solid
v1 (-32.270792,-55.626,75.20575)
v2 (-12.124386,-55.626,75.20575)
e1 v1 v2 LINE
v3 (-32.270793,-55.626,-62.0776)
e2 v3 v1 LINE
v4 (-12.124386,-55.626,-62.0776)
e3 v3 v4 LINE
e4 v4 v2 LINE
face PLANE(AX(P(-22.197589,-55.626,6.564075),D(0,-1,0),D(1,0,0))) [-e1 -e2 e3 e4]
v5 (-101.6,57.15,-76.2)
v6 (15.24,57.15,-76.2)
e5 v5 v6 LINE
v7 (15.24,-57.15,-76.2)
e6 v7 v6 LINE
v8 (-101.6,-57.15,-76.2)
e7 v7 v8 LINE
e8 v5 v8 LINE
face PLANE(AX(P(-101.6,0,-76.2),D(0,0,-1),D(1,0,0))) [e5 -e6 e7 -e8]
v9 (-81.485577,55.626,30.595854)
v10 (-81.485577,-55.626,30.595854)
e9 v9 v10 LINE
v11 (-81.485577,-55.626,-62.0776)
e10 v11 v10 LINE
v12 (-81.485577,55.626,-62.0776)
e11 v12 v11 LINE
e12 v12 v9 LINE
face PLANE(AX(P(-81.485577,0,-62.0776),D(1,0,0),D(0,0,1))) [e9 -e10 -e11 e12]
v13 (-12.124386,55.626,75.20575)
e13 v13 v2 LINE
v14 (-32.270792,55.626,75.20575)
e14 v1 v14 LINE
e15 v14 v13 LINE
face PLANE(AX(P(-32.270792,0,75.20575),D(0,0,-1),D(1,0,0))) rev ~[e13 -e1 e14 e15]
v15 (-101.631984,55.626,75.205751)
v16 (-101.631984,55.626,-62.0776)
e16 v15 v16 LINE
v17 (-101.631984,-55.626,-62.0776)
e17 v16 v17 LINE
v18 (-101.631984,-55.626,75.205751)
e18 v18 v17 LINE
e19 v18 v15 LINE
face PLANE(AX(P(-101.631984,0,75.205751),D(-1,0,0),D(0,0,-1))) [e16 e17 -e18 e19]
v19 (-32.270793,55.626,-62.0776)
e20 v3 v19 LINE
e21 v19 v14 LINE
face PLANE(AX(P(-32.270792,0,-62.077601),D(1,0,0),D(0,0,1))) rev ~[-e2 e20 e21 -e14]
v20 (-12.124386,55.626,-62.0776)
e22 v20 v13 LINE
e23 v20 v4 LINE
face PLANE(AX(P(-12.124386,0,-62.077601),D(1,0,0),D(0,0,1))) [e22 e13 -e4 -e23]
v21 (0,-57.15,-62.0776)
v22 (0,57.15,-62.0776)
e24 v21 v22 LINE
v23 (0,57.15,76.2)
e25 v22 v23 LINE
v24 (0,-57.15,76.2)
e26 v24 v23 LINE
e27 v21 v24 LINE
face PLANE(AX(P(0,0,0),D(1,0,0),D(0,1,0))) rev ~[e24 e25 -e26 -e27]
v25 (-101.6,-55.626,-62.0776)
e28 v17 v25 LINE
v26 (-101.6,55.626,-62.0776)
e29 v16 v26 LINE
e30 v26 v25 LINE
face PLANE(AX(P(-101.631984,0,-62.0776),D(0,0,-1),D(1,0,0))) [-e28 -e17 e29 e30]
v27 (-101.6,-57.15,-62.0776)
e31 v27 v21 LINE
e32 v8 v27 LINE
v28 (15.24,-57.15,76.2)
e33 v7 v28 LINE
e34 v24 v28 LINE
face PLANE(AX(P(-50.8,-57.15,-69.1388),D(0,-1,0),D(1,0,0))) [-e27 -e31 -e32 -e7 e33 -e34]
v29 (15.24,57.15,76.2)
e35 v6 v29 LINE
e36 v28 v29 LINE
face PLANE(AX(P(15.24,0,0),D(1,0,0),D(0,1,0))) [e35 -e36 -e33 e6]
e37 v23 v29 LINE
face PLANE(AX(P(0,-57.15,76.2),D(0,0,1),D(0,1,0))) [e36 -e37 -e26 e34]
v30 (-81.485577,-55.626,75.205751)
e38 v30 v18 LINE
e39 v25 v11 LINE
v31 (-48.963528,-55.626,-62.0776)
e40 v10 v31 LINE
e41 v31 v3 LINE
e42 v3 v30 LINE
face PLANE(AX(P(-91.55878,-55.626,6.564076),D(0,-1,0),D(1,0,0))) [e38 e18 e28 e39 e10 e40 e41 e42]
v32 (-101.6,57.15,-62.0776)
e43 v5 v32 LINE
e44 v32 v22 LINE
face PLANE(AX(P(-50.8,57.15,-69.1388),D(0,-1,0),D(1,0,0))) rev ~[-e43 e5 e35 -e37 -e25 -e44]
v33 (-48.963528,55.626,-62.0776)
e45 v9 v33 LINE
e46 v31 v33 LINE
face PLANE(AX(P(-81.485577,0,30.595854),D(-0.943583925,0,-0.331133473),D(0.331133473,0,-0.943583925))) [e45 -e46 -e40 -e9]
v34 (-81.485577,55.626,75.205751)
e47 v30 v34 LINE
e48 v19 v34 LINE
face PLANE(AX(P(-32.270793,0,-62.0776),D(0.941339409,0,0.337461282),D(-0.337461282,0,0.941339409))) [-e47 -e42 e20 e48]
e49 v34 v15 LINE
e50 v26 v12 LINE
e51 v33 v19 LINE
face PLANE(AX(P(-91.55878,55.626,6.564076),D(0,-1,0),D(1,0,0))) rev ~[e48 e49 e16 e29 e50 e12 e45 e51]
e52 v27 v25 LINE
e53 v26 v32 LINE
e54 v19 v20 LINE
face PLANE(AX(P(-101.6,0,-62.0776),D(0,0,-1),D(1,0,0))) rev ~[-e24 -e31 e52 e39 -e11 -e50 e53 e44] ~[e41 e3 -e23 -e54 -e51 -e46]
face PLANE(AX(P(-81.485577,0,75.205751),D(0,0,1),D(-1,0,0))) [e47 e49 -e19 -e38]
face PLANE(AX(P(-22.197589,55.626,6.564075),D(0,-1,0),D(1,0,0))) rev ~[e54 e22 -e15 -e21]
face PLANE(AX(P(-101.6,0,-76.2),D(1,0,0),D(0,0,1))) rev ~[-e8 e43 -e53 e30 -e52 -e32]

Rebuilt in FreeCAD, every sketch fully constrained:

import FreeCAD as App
import Part
import Sketcher
from FreeCAD import Vector
Q = App.Units.Quantity

doc = App.newDocument("Part")
body = doc.addObject("PartDesign::Body", "Body")

# Sketch on YZ plane
sketch1 = doc.addObject("Sketcher::SketchObject", "Sketch")
body.addObject(sketch1)
sketch1.AttachmentSupport = (doc.YZ_Plane, [""])
sketch1.MapMode = "FlatFace"
sketch1.addGeometry([
    Part.LineSegment(Vector(-57.15, 76.2, 0), Vector(-57.15, -76.2, 0)),
    Part.LineSegment(Vector(-57.15, -76.2, 0), Vector(57.15, -76.2, 0)),
    Part.LineSegment(Vector(57.15, -76.2, 0), Vector(57.15, 76.2, 0)),
    Part.LineSegment(Vector(57.15, 76.2, 0), Vector(-57.15, 76.2, 0)),
], False)
sketch1.addConstraint([
    Sketcher.Constraint("Coincident", 0, 2, 1, 1),
    Sketcher.Constraint("Coincident", 1, 2, 2, 1),
    Sketcher.Constraint("Coincident", 2, 2, 3, 1),
    Sketcher.Constraint("Coincident", 3, 2, 0, 1),
    Sketcher.Constraint("Vertical", 0),
    Sketcher.Constraint("Horizontal", 1),
    Sketcher.Constraint("Vertical", 2),
    Sketcher.Constraint("Horizontal", 3),
    Sketcher.Constraint("Symmetric", 0, 2, 2, 2, -1, 1),
    Sketcher.Constraint("DistanceY", 0, 2, 0, 1, Q("6 in")),
    Sketcher.Constraint("DistanceX", 1, 1, 1, 2, Q("4.5 in")),
])
pad1 = doc.addObject("PartDesign::Pad", "Pad")
body.addObject(pad1)
pad1.Profile = sketch1
pad1.Length = Q("0.6 in")

# Sketch on XZ plane
sketch2 = doc.addObject("Sketcher::SketchObject", "Sketch001")
body.addObject(sketch2)
sketch2.AttachmentSupport = (doc.XZ_Plane, [""])
sketch2.MapMode = "FlatFace"
sketch2.addGeometry([
    Part.LineSegment(Vector(-101.6, -62.0776, 0), Vector(-101.6, -76.2, 0)),
    Part.LineSegment(Vector(-101.6, -76.2, 0), Vector(0, -76.2, 0)),
    Part.LineSegment(Vector(0, -76.2, 0), Vector(0, -62.0776, 0)),
    Part.LineSegment(Vector(0, -62.0776, 0), Vector(-101.6, -62.0776, 0)),
], False)
sketch2.addConstraint([
    Sketcher.Constraint("Coincident", 0, 2, 1, 1),
    Sketcher.Constraint("Coincident", 1, 2, 2, 1),
    Sketcher.Constraint("Coincident", 2, 2, 3, 1),
    Sketcher.Constraint("Coincident", 3, 2, 0, 1),
    Sketcher.Constraint("Vertical", 0),
    Sketcher.Constraint("Horizontal", 1),
    Sketcher.Constraint("Vertical", 2),
    Sketcher.Constraint("Horizontal", 3),
    Sketcher.Constraint("PointOnObject", 1, 2, -2),
    Sketcher.Constraint("DistanceX", 1, 1, 1, 2, Q("4 in")),
    Sketcher.Constraint("DistanceY", 0, 2, -1, 1, Q("3 in")),
    Sketcher.Constraint("DistanceY", 0, 2, 0, 1, Q("0.556 in")),
])
pad2 = doc.addObject("PartDesign::Pad", "Pad001")
body.addObject(pad2)
pad2.Profile = sketch2
pad2.Length = Q("2.25 in")

# Sketch on XZ plane
sketch3 = doc.addObject("Sketcher::SketchObject", "Sketch002")
body.addObject(sketch3)
sketch3.AttachmentSupport = (doc.XZ_Plane, [""])
sketch3.MapMode = "FlatFace"
sketch3.addGeometry([
    Part.LineSegment(Vector(-101.6, -62.0776, 0), Vector(-101.6, -76.2, 0)),
    Part.LineSegment(Vector(-101.6, -76.2, 0), Vector(0, -76.2, 0)),
    Part.LineSegment(Vector(0, -76.2, 0), Vector(0, -62.0776, 0)),
    Part.LineSegment(Vector(0, -62.0776, 0), Vector(-101.6, -62.0776, 0)),
], False)
sketch3.addConstraint([
    Sketcher.Constraint("Coincident", 0, 2, 1, 1),
    Sketcher.Constraint("Coincident", 1, 2, 2, 1),
    Sketcher.Constraint("Coincident", 2, 2, 3, 1),
    Sketcher.Constraint("Coincident", 3, 2, 0, 1),
    Sketcher.Constraint("Vertical", 0),
    Sketcher.Constraint("Horizontal", 1),
    Sketcher.Constraint("Vertical", 2),
    Sketcher.Constraint("Horizontal", 3),
    Sketcher.Constraint("PointOnObject", 1, 2, -2),
    Sketcher.Constraint("DistanceX", 1, 1, 1, 2, Q("4 in")),
    Sketcher.Constraint("DistanceY", 0, 2, -1, 1, Q("3 in")),
    Sketcher.Constraint("DistanceY", 0, 2, 0, 1, Q("0.556 in")),
])
pad3 = doc.addObject("PartDesign::Pad", "Pad002")
body.addObject(pad3)
pad3.Profile = sketch3
pad3.Length = Q("2.25 in")
pad3.Reversed = True

# Sketch on XZ plane
sketch4 = doc.addObject("Sketcher::SketchObject", "Sketch003")
body.addObject(sketch4)
sketch4.AttachmentSupport = (doc.XZ_Plane, [""])
sketch4.MapMode = "FlatFace"
sketch4.addGeometry([
    Part.LineSegment(Vector(-101.631984, 75.205751, 0), Vector(-101.631984, -62.0776, 0)),  # 0
    Part.LineSegment(Vector(-101.631984, -62.0776, 0), Vector(-81.485577, -62.0776, 0)),  # 1
    Part.LineSegment(Vector(-81.485577, -62.0776, 0), Vector(-81.485577, 30.595854, 0)),  # 2
    Part.LineSegment(Vector(-81.485577, 30.595854, 0), Vector(-48.963528, -62.0776, 0)),  # 3
    Part.LineSegment(Vector(-48.963528, -62.0776, 0), Vector(-32.270793, -62.0776, 0)),  # 4
    Part.LineSegment(Vector(-32.270793, -62.0776, 0), Vector(-81.485577, 75.205751, 0)),  # 5
    Part.LineSegment(Vector(-81.485577, 75.205751, 0), Vector(-101.631984, 75.205751, 0)),  # 6
    Part.LineSegment(Vector(-32.270792, 75.20575, 0), Vector(-32.270792, -62.077601, 0)),  # 7
    Part.LineSegment(Vector(-32.270792, -62.077601, 0), Vector(-12.124386, -62.077601, 0)),  # 8
    Part.LineSegment(Vector(-12.124386, -62.077601, 0), Vector(-12.124386, 75.20575, 0)),  # 9
    Part.LineSegment(Vector(-12.124386, 75.20575, 0), Vector(-32.270792, 75.20575, 0)),  # 10
], False)
sketch4.addConstraint([
    Sketcher.Constraint("Coincident", 0, 2, 1, 1),
    Sketcher.Constraint("Coincident", 1, 2, 2, 1),
    Sketcher.Constraint("Coincident", 2, 2, 3, 1),
    Sketcher.Constraint("Coincident", 3, 2, 4, 1),
    Sketcher.Constraint("Coincident", 4, 2, 5, 1),
    Sketcher.Constraint("Coincident", 5, 2, 6, 1),
    Sketcher.Constraint("Coincident", 6, 2, 0, 1),
    Sketcher.Constraint("Coincident", 7, 2, 8, 1),
    Sketcher.Constraint("Coincident", 8, 2, 9, 1),
    Sketcher.Constraint("Coincident", 9, 2, 10, 1),
    Sketcher.Constraint("Coincident", 10, 2, 7, 1),
    Sketcher.Constraint("Vertical", 0),
    Sketcher.Constraint("Horizontal", 1),
    Sketcher.Constraint("Vertical", 2),
    Sketcher.Constraint("Horizontal", 4),
    Sketcher.Constraint("Horizontal", 6),
    Sketcher.Constraint("Vertical", 7),
    Sketcher.Constraint("Horizontal", 8),
    Sketcher.Constraint("Vertical", 9),
    Sketcher.Constraint("Horizontal", 10),
    Sketcher.Constraint("Coincident", 7, 2, 4, 2),
    Sketcher.Constraint("Horizontal", 1, 2, 3, 2),
    Sketcher.Constraint("Horizontal", 6, 2, 9, 2),
    Sketcher.Constraint("Vertical", 2, 2, 5, 2),
    Sketcher.Constraint("Equal", 6, 8),
    Sketcher.Constraint("DistanceY", 0, 2, -1, 1, Q("2.444 in")),
    Sketcher.Constraint("DistanceY", 0, 2, 0, 1, Q("137.283351 mm")),
    Sketcher.Constraint("DistanceX", 0, 2, 8, 2, Q("89.507599 mm")),
    Sketcher.Constraint("Distance", 3, Q("98.21432 mm")),
    Sketcher.Constraint("DistanceX", 1, 1, 1, 2, Q("20.146407 mm")),
    Sketcher.Constraint("DistanceX", 4, 1, 4, 2, Q("16.692735 mm")),
    Sketcher.Constraint("DistanceX", 0, 2, -1, 1, Q("101.631984 mm")),
])
pad4 = doc.addObject("PartDesign::Pad", "Pad003")
body.addObject(pad4)
pad4.Profile = sketch4
pad4.Length = Q("2.19 in")

# Sketch on XZ plane
sketch5 = doc.addObject("Sketcher::SketchObject", "Sketch004")
body.addObject(sketch5)
sketch5.AttachmentSupport = (doc.XZ_Plane, [""])
sketch5.MapMode = "FlatFace"
sketch5.addGeometry([
    Part.LineSegment(Vector(-101.631984, 75.205751, 0), Vector(-101.631984, -62.0776, 0)),  # 0
    Part.LineSegment(Vector(-101.631984, -62.0776, 0), Vector(-81.485577, -62.0776, 0)),  # 1
    Part.LineSegment(Vector(-81.485577, -62.0776, 0), Vector(-81.485577, 30.595854, 0)),  # 2
    Part.LineSegment(Vector(-81.485577, 30.595854, 0), Vector(-48.963528, -62.0776, 0)),  # 3
    Part.LineSegment(Vector(-48.963528, -62.0776, 0), Vector(-32.270793, -62.0776, 0)),  # 4
    Part.LineSegment(Vector(-32.270793, -62.0776, 0), Vector(-81.485577, 75.205751, 0)),  # 5
    Part.LineSegment(Vector(-81.485577, 75.205751, 0), Vector(-101.631984, 75.205751, 0)),  # 6
    Part.LineSegment(Vector(-32.270792, 75.20575, 0), Vector(-32.270792, -62.077601, 0)),  # 7
    Part.LineSegment(Vector(-32.270792, -62.077601, 0), Vector(-12.124386, -62.077601, 0)),  # 8
    Part.LineSegment(Vector(-12.124386, -62.077601, 0), Vector(-12.124386, 75.20575, 0)),  # 9
    Part.LineSegment(Vector(-12.124386, 75.20575, 0), Vector(-32.270792, 75.20575, 0)),  # 10
], False)
sketch5.addConstraint([
    Sketcher.Constraint("Coincident", 0, 2, 1, 1),
    Sketcher.Constraint("Coincident", 1, 2, 2, 1),
    Sketcher.Constraint("Coincident", 2, 2, 3, 1),
    Sketcher.Constraint("Coincident", 3, 2, 4, 1),
    Sketcher.Constraint("Coincident", 4, 2, 5, 1),
    Sketcher.Constraint("Coincident", 5, 2, 6, 1),
    Sketcher.Constraint("Coincident", 6, 2, 0, 1),
    Sketcher.Constraint("Coincident", 7, 2, 8, 1),
    Sketcher.Constraint("Coincident", 8, 2, 9, 1),
    Sketcher.Constraint("Coincident", 9, 2, 10, 1),
    Sketcher.Constraint("Coincident", 10, 2, 7, 1),
    Sketcher.Constraint("Vertical", 0),
    Sketcher.Constraint("Horizontal", 1),
    Sketcher.Constraint("Vertical", 2),
    Sketcher.Constraint("Horizontal", 4),
    Sketcher.Constraint("Horizontal", 6),
    Sketcher.Constraint("Vertical", 7),
    Sketcher.Constraint("Horizontal", 8),
    Sketcher.Constraint("Vertical", 9),
    Sketcher.Constraint("Horizontal", 10),
    Sketcher.Constraint("Coincident", 7, 2, 4, 2),
    Sketcher.Constraint("Horizontal", 1, 2, 3, 2),
    Sketcher.Constraint("Horizontal", 6, 2, 9, 2),
    Sketcher.Constraint("Vertical", 2, 2, 5, 2),
    Sketcher.Constraint("Equal", 6, 8),
    Sketcher.Constraint("DistanceY", 0, 2, -1, 1, Q("2.444 in")),
    Sketcher.Constraint("DistanceY", 0, 2, 0, 1, Q("137.283351 mm")),
    Sketcher.Constraint("DistanceX", 0, 2, 8, 2, Q("89.507599 mm")),
    Sketcher.Constraint("Distance", 3, Q("98.21432 mm")),
    Sketcher.Constraint("DistanceX", 1, 1, 1, 2, Q("20.146407 mm")),
    Sketcher.Constraint("DistanceX", 4, 1, 4, 2, Q("16.692735 mm")),
    Sketcher.Constraint("DistanceX", 0, 2, -1, 1, Q("101.631984 mm")),
])
pad5 = doc.addObject("PartDesign::Pad", "Pad004")
body.addObject(pad5)
pad5.Profile = sketch5
pad5.Length = Q("2.19 in")
pad5.Reversed = True

doc.recompute()
